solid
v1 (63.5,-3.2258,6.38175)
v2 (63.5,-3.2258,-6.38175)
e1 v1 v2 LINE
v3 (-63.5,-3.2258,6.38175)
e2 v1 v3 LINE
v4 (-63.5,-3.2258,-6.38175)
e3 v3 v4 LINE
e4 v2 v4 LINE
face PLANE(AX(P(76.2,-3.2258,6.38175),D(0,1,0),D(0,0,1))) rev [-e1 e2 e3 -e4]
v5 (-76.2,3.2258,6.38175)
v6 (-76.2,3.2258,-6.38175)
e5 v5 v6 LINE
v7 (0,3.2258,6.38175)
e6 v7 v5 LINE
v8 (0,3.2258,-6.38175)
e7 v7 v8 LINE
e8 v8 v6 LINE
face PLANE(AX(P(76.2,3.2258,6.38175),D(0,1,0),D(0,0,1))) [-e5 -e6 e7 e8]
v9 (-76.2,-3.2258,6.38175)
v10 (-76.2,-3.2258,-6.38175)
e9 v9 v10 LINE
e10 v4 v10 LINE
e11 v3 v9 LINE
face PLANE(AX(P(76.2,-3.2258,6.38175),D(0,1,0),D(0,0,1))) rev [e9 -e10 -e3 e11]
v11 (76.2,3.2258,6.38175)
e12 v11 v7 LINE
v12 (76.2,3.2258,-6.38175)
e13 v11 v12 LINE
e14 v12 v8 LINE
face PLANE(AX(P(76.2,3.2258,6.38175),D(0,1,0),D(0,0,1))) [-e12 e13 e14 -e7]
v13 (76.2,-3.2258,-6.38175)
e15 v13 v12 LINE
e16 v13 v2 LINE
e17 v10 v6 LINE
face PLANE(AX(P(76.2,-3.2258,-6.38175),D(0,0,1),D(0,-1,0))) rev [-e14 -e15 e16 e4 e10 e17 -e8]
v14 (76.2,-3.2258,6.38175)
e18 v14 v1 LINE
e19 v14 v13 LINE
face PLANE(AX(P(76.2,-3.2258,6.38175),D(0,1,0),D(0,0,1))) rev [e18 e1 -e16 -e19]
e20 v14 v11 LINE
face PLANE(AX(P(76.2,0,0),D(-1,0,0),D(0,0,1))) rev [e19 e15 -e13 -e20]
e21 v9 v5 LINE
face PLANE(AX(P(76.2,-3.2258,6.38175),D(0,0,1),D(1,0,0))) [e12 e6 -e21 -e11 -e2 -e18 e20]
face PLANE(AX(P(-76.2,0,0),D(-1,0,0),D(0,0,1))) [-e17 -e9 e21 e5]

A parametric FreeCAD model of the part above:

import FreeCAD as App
import Part
import Sketcher
from FreeCAD import Vector
Q = App.Units.Quantity

doc = App.newDocument("Part")
body = doc.addObject("PartDesign::Body", "Body")

# Sketch on YZ plane
sketch1 = body.newObject("Sketcher::SketchObject", "Sketch")
sketch1.AttachmentSupport = (doc.getObject("YZ_Plane"), [""])
sketch1.MapMode = "FlatFace"
sketch1.addGeometry(Part.LineSegment(Vector(3, 6, 0), Vector(-3, 6, 0)), False)
sketch1.addGeometry(Part.LineSegment(Vector(-3, 6, 0), Vector(-3, -6, 0)), False)
sketch1.addGeometry(Part.LineSegment(Vector(-3, -6, 0), Vector(3, -6, 0)), False)
sketch1.addGeometry(Part.LineSegment(Vector(3, -6, 0), Vector(3, 6, 0)), False)
sketch1.addConstraint(Sketcher.Constraint("Coincident", 0, 2, 1, 1))
sketch1.addConstraint(Sketcher.Constraint("Coincident", 1, 2, 2, 1))
sketch1.addConstraint(Sketcher.Constraint("Coincident", 2, 2, 3, 1))
sketch1.addConstraint(Sketcher.Constraint("Coincident", 3, 2, 0, 1))
sketch1.addConstraint(Sketcher.Constraint("Horizontal", 0))
sketch1.addConstraint(Sketcher.Constraint("Vertical", 1))
sketch1.addConstraint(Sketcher.Constraint("Horizontal", 2))
sketch1.addConstraint(Sketcher.Constraint("Vertical", 3))
sketch1.addConstraint(Sketcher.Constraint("Symmetric", 0, 2, 2, 2, -1, 1))
sketch1.addConstraint(Sketcher.Constraint("DistanceX", 0, 2, 0, 1, Q("0.254 in")))
sketch1.addConstraint(Sketcher.Constraint("DistanceY", 1, 2, 1, 1, Q("0.5025 in")))
pad1 = body.newObject("PartDesign::Pad", "Pad")
pad1.Profile = sketch1
pad1.Length = Q("6 in")
pad1.Midplane = True

doc.recompute()
